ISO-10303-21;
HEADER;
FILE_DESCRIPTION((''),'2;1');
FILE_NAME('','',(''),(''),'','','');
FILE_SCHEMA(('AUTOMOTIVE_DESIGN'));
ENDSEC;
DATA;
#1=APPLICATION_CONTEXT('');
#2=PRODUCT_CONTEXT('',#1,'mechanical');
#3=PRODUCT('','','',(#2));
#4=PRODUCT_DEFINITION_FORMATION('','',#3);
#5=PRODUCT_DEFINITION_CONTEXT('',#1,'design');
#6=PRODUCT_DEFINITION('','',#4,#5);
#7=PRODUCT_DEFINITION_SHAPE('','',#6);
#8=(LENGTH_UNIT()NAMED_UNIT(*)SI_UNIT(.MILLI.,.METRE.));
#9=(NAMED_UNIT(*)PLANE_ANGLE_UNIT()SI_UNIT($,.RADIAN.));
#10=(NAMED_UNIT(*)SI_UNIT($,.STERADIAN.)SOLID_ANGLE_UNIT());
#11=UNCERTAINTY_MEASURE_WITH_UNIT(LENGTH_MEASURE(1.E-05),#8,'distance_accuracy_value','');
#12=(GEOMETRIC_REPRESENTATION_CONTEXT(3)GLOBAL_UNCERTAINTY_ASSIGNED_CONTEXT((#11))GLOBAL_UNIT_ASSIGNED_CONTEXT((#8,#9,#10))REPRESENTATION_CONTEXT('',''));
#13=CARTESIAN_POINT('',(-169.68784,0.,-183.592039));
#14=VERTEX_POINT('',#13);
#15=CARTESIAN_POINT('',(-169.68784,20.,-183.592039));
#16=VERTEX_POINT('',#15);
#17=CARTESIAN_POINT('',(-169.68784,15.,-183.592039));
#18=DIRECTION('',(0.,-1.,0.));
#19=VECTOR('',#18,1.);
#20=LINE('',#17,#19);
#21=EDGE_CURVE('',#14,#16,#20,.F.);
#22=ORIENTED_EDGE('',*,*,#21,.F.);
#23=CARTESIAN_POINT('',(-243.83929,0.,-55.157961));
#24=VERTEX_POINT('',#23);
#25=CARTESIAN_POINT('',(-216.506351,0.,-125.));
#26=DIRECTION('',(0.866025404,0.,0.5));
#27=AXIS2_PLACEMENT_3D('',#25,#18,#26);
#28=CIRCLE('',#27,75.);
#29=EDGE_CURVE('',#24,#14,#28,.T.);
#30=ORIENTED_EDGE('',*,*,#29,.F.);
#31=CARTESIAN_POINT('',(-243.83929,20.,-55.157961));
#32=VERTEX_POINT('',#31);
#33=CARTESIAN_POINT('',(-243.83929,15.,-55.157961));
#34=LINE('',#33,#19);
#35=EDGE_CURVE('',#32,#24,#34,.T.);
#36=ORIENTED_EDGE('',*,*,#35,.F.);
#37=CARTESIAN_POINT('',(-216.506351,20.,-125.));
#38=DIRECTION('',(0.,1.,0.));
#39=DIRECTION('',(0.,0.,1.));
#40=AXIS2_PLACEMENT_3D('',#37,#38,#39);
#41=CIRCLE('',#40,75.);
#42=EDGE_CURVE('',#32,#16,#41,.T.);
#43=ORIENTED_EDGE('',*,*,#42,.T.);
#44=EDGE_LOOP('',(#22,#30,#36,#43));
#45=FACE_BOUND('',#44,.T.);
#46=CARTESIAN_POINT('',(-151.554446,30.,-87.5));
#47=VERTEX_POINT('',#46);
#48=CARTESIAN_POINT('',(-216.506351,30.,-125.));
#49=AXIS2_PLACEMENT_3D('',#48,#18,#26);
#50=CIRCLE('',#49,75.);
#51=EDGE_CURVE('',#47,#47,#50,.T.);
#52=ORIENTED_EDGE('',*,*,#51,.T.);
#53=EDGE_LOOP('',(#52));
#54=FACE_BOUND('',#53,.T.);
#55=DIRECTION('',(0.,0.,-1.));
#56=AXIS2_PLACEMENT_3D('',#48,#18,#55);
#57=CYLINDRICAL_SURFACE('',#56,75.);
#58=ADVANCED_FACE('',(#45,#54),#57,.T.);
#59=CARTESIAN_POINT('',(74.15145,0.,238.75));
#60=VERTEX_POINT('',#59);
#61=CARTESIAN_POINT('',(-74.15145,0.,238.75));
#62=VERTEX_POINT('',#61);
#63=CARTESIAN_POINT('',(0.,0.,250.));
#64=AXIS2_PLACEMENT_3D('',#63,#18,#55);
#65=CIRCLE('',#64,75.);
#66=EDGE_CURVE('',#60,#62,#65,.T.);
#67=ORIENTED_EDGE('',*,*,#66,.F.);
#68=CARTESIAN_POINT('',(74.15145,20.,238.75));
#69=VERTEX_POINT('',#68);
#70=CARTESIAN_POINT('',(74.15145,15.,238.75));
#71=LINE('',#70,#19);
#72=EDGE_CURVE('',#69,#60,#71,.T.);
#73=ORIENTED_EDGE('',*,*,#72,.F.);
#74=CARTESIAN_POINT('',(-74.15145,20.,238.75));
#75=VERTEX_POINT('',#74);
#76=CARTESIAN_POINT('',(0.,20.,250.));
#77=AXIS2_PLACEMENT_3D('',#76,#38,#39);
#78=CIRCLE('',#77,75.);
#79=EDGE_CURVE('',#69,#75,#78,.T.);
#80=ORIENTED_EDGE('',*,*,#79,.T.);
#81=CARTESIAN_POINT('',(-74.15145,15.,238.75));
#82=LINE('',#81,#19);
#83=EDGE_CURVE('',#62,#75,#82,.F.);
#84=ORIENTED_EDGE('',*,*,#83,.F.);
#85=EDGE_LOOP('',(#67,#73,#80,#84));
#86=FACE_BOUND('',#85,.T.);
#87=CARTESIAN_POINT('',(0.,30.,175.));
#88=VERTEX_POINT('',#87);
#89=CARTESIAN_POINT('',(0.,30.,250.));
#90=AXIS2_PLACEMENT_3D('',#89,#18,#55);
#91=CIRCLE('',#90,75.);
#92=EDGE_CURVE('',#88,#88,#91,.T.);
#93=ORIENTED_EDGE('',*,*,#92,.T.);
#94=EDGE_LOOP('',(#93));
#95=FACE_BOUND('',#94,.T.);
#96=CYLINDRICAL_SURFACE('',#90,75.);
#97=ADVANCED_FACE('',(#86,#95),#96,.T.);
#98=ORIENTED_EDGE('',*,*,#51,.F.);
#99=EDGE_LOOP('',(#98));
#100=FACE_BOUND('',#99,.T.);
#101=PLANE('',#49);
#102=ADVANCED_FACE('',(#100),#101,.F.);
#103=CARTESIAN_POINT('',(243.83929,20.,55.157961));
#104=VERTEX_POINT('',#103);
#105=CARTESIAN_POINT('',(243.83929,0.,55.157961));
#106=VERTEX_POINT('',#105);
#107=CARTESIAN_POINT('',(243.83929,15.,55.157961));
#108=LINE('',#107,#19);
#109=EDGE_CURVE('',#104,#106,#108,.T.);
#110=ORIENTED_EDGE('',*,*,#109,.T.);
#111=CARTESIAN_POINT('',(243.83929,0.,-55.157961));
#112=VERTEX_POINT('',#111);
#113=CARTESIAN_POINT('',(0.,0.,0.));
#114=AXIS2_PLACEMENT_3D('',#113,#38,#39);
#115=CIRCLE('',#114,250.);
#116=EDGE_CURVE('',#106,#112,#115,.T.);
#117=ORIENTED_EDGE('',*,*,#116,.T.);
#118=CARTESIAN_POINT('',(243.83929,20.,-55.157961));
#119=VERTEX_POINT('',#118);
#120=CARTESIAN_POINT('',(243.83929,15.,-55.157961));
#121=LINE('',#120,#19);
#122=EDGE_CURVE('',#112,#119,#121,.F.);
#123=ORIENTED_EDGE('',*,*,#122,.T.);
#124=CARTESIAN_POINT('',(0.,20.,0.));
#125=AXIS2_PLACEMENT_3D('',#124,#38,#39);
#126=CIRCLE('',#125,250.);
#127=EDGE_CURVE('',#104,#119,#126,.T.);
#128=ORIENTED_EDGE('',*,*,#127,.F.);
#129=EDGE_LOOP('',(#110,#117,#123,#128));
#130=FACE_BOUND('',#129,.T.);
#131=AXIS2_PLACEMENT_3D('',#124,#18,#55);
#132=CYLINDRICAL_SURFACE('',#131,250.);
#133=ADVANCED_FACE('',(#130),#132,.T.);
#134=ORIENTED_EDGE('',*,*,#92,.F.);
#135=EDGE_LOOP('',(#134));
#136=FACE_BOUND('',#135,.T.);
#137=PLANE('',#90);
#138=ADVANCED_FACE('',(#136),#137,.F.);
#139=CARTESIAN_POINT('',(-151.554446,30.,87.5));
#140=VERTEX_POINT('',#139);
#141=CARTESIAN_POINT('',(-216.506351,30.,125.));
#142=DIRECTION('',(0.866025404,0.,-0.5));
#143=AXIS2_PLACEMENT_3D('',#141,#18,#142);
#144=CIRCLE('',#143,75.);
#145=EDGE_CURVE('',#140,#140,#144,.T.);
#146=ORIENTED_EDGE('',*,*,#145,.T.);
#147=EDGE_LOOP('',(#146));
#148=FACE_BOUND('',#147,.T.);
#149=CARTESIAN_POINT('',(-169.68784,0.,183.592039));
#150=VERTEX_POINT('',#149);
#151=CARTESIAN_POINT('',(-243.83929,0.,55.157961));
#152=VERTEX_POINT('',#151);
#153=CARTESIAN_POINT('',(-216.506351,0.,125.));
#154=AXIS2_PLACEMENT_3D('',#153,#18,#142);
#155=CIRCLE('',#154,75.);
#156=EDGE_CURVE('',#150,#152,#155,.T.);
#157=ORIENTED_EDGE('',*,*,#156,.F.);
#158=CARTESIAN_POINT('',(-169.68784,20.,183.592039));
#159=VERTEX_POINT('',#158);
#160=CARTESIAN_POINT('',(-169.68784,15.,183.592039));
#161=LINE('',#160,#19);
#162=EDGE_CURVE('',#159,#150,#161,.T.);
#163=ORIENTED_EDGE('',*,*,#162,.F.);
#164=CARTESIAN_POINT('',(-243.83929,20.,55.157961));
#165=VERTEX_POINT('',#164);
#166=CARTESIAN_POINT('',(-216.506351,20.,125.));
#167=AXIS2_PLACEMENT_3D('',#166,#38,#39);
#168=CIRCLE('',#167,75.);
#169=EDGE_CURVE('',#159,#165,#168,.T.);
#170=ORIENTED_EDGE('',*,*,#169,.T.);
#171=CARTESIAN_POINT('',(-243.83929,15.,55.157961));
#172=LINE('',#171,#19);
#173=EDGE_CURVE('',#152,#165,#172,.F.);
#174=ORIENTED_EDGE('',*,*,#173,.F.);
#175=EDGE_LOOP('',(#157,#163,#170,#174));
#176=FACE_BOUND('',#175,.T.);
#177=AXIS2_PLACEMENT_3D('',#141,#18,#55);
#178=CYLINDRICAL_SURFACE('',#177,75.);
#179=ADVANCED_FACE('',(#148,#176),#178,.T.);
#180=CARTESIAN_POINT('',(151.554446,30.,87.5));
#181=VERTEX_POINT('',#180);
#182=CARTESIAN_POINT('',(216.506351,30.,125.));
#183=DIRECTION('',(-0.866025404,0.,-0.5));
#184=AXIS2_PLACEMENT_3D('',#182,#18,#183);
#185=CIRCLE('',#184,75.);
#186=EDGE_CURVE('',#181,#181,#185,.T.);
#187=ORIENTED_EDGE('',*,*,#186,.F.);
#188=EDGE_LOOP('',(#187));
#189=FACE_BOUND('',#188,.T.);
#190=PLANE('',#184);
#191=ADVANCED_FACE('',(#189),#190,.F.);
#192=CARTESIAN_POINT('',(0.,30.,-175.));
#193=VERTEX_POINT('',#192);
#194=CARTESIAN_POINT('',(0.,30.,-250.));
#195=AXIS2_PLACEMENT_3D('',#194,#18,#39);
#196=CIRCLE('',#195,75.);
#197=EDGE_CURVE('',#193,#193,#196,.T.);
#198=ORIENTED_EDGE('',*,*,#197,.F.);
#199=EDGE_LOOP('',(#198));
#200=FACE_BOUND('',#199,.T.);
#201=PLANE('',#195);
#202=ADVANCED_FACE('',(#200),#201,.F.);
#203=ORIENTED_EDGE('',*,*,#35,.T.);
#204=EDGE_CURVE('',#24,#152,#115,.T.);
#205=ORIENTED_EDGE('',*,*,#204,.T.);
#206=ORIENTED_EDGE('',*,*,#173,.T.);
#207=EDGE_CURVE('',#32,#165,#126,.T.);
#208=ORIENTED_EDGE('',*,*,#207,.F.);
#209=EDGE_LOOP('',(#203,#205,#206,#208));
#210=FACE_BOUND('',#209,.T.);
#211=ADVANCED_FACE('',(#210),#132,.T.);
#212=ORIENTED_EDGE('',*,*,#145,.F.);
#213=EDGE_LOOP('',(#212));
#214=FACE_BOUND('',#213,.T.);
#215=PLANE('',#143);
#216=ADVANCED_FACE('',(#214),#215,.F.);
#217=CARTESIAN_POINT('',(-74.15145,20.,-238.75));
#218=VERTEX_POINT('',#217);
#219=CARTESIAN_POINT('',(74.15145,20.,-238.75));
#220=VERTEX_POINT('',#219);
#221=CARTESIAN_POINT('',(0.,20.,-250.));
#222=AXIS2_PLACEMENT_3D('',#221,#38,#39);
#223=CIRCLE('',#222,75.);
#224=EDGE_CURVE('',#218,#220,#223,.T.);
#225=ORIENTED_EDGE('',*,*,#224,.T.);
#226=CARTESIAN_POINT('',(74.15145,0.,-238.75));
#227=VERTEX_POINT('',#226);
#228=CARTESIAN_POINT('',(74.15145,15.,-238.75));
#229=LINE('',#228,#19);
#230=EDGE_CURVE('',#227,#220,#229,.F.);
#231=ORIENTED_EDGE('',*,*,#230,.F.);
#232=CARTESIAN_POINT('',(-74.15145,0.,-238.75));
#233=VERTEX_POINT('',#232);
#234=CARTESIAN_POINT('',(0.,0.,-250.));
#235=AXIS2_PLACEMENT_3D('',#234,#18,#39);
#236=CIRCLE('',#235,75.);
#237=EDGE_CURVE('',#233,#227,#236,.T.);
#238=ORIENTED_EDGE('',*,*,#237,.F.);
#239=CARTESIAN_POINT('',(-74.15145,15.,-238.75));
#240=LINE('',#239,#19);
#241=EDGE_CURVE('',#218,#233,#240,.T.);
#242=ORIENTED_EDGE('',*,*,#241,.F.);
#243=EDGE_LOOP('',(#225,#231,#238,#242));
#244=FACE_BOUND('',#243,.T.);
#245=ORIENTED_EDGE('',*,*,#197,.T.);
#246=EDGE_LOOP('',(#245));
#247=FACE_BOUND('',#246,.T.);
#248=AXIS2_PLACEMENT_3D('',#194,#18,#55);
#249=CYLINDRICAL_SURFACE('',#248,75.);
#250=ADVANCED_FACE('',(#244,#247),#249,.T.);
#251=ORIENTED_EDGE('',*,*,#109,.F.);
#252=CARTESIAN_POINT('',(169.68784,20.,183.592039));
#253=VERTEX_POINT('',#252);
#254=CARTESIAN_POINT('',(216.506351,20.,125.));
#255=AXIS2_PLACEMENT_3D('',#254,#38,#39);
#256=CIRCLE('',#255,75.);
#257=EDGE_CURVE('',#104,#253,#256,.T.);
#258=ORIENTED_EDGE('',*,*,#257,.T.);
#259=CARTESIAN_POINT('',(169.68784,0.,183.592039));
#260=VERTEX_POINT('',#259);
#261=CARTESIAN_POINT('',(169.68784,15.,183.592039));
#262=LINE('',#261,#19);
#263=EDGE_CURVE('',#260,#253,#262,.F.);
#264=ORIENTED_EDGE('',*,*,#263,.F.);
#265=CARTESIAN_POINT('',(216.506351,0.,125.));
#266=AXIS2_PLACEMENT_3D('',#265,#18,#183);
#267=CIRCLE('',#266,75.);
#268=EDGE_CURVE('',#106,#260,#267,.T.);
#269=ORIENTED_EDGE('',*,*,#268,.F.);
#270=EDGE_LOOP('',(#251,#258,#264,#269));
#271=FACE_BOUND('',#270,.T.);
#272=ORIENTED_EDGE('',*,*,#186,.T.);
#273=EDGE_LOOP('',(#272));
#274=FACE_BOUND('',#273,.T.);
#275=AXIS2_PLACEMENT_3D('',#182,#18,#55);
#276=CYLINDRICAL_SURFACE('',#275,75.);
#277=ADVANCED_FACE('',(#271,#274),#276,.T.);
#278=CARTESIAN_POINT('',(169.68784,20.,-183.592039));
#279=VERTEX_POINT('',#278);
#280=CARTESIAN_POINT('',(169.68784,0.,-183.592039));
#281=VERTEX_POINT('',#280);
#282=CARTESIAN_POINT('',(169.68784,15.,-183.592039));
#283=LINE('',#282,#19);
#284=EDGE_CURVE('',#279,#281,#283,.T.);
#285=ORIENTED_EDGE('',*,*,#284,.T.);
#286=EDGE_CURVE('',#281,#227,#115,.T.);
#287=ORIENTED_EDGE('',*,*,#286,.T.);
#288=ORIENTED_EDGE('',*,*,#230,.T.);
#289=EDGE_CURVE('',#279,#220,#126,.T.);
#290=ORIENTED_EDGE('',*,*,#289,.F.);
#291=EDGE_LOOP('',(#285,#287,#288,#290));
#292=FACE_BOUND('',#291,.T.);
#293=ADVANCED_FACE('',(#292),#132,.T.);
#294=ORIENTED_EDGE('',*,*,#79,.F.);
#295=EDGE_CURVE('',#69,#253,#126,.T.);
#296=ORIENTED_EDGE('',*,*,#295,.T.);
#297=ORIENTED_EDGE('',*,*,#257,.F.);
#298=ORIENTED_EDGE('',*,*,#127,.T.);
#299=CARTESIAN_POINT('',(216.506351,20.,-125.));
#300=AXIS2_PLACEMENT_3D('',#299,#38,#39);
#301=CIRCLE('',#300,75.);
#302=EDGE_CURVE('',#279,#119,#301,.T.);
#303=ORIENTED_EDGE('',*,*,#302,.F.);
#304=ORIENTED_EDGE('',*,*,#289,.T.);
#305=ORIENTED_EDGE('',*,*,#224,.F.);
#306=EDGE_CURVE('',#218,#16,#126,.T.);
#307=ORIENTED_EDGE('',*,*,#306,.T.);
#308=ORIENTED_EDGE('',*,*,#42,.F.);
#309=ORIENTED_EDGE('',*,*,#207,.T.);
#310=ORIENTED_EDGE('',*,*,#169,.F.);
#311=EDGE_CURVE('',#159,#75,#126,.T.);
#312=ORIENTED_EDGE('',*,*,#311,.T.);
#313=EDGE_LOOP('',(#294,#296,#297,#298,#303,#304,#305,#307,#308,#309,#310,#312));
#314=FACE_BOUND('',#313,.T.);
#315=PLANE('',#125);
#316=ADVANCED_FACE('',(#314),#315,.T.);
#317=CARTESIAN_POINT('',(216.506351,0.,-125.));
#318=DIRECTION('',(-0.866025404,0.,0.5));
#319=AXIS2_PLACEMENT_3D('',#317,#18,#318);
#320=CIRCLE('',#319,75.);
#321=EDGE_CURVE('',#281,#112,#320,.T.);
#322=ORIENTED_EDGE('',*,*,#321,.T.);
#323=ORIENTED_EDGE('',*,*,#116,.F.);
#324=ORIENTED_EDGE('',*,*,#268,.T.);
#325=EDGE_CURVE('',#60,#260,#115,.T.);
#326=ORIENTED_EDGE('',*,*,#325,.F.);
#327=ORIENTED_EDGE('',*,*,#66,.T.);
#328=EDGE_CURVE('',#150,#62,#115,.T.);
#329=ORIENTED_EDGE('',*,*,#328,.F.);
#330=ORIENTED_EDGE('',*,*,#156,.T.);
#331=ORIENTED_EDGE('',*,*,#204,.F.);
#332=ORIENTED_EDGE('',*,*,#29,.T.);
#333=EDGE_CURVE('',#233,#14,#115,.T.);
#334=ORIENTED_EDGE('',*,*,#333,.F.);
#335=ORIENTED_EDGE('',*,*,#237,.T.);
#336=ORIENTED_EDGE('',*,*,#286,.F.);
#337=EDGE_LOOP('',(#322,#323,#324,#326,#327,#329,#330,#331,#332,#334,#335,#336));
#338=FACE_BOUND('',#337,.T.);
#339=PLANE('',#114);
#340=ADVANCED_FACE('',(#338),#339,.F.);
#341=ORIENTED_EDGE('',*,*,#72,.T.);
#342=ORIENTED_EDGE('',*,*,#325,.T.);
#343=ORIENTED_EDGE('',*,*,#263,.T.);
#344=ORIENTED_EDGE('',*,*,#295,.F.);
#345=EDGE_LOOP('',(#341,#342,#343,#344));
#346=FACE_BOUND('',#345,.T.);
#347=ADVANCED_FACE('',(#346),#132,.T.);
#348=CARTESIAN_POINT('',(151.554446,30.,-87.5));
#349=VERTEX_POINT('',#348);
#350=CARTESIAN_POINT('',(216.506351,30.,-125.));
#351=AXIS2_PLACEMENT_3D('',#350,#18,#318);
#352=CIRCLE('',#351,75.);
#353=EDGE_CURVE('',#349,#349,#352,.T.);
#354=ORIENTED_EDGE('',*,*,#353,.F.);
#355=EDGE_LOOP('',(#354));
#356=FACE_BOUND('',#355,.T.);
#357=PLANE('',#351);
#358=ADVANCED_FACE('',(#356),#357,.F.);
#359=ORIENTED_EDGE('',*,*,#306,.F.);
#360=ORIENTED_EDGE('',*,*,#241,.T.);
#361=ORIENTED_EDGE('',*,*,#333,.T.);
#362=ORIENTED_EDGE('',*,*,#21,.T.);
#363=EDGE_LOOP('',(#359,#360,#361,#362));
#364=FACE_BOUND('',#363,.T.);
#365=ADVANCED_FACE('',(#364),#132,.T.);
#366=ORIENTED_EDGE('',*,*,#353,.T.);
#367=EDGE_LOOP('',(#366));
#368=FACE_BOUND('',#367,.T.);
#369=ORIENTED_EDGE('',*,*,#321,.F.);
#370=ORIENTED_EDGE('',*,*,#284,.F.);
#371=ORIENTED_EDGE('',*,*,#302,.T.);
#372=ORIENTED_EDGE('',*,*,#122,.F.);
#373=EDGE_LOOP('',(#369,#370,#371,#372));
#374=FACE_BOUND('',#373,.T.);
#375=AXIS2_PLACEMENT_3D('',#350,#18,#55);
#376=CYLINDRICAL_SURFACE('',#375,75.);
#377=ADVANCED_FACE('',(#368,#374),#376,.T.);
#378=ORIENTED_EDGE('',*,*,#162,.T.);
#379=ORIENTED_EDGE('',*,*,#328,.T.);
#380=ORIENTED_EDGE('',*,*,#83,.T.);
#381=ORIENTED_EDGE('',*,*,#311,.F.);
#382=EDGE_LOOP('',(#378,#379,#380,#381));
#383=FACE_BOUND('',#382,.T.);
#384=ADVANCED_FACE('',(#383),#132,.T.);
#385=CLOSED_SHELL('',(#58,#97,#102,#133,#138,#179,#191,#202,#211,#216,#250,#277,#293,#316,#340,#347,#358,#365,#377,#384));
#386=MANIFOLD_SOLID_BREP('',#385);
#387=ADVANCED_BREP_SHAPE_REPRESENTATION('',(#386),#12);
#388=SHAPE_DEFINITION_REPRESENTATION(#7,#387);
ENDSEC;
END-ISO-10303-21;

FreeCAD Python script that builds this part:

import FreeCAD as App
import Part
import Sketcher

V = App.Vector

doc = App.newDocument("Part")
body = doc.addObject("PartDesign::Body", "Body")

# Sketch on XZ plane
sketch1 = doc.addObject("Sketcher::SketchObject", "Sketch")
body.addObject(sketch1)
sketch1.AttachmentSupport = (doc.XZ_Plane, [""])
sketch1.MapMode = "FlatFace"
sketch1.addGeometry(Part.Circle(V(0, 0, 0), V(0, 0, 1), 250), False)
sketch1.addConstraint([
    Sketcher.Constraint("Coincident", 0, 3, -1, 1),
    Sketcher.Constraint("Diameter", 0, 500.0),
])
pad1 = doc.addObject("PartDesign::Pad", "Pad")
body.addObject(pad1)
pad1.Profile = sketch1
pad1.Length = 20
pad1.Reversed = True

# Sketch on XZ plane
sketch2 = doc.addObject("Sketcher::SketchObject", "Sketch001")
body.addObject(sketch2)
sketch2.AttachmentSupport = (doc.XZ_Plane, [""])
sketch2.MapMode = "FlatFace"
sketch2.addGeometry(Part.Circle(V(0, 250, 0), V(0, 0, 1), 75), False)
sketch2.addConstraint([
    Sketcher.Constraint("PointOnObject", 0, 3, -2),
    Sketcher.Constraint("Diameter", 0, 150.0),
    Sketcher.Constraint("DistanceY", -1, 1, 0, 3, 250.0),
])
pad2 = doc.addObject("PartDesign::Pad", "Pad001")
body.addObject(pad2)
pad2.Profile = sketch2
pad2.Length = 30
pad2.Reversed = True
doc.recompute()

polarpattern = doc.addObject("PartDesign::PolarPattern", "PolarPattern")
body.addObject(polarpattern)
polarpattern.Originals = [pad2]
polarpattern.Axis = (doc.Y_Axis, [""])
polarpattern.Angle = 360
polarpattern.Occurrences = 6
body.Tip = polarpattern

doc.recompute()
